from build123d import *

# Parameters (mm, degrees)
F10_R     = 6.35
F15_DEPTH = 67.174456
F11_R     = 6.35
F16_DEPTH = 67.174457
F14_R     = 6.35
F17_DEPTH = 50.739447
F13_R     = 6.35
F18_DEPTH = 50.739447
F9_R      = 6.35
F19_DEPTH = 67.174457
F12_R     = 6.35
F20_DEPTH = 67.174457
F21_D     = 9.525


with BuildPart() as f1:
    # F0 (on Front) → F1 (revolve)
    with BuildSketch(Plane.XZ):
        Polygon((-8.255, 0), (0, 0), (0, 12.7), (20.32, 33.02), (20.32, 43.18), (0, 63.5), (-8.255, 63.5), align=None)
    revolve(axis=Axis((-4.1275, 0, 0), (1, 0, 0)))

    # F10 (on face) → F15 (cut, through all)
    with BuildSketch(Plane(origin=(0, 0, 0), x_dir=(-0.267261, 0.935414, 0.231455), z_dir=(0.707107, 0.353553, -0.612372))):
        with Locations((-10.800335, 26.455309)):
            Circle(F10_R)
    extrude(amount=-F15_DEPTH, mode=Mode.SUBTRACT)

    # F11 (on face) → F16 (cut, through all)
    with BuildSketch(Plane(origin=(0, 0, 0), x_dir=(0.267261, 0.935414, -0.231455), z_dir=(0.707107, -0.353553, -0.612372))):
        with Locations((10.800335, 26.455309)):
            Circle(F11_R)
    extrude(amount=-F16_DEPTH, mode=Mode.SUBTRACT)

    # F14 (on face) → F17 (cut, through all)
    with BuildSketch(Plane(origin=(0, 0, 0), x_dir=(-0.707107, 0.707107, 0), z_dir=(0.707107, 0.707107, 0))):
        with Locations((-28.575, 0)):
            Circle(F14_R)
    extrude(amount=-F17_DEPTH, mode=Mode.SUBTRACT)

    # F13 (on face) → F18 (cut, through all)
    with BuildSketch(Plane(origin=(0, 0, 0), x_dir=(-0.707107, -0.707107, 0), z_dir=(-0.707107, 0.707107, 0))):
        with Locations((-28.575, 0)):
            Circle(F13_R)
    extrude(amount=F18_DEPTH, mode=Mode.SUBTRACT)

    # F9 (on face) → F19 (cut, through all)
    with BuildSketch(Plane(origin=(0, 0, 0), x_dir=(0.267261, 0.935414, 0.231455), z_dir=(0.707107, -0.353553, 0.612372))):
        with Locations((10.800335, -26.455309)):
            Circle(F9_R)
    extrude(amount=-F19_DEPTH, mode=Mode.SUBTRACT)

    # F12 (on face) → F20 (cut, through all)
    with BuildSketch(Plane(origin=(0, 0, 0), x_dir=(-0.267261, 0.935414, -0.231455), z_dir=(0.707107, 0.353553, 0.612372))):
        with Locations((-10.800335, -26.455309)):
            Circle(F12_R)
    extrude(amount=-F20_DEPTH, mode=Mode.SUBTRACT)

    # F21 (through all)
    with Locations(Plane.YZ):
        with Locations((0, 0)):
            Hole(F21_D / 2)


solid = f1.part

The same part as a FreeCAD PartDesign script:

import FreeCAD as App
import Part
import Sketcher

V = App.Vector
Q = App.Units.Quantity

doc = App.newDocument("Part")
params = doc.addObject("Spreadsheet::Sheet", "Params")
for row, (alias, value) in enumerate([
    ("sketch1_height", "0.5 in"),
    ("sketch1_height2", "0.4 in"),
    ("sketch1_height3", "2.5 in"),
    ("sketch1_width", "0.325 in"),
    ("revolution_angle", "360 deg"),
    ("sketch2_diameter", "0.5 in"),
    ("sketch3_diameter", "0.5 in"),
    ("sketch4_diameter", "0.5 in"),
    ("sketch5_diameter", "0.5 in"),
    ("sketch6_diameter", "0.5 in"),
    ("sketch7_diameter", "0.5 in"),
    ("sketch8_diameter", "0.375 in"),
    ("hole_diameter", "0.375 in"),
], start=1):
    params.set(f"A{row}", alias)
    params.set(f"B{row}", "=" + value)
    params.setAlias(f"B{row}", alias)

body = doc.addObject("PartDesign::Body", "Body")

# Sketch on XZ plane
sketch1 = body.newObject("Sketcher::SketchObject", "Sketch")
sketch1.AttachmentSupport = (doc.getObject("XZ_Plane"), [""])
sketch1.MapMode = "FlatFace"
sketch1.addGeometry([
    Part.LineSegment(V(-8, 0, 0), V(0, 0, 0)),  # 0
    Part.LineSegment(V(0, 0, 0), V(0, 13, 0)),  # 1
    Part.LineSegment(V(0, 13, 0), V(20, 33, 0)),  # 2
    Part.LineSegment(V(20, 33, 0), V(20, 43, 0)),  # 3
    Part.LineSegment(V(20, 43, 0), V(0, 64, 0)),  # 4
    Part.LineSegment(V(0, 64, 0), V(-8, 64, 0)),  # 5
    Part.LineSegment(V(-8, 64, 0), V(-8, 0, 0)),  # 6
], False)
sketch1.addConstraint([
    Sketcher.Constraint("Coincident", 0, 2, 1, 1),
    Sketcher.Constraint("Coincident", 1, 2, 2, 1),
    Sketcher.Constraint("Coincident", 2, 2, 3, 1),
    Sketcher.Constraint("Coincident", 3, 2, 4, 1),
    Sketcher.Constraint("Coincident", 4, 2, 5, 1),
    Sketcher.Constraint("Coincident", 5, 2, 6, 1),
    Sketcher.Constraint("Coincident", 6, 2, 0, 1),
    Sketcher.Constraint("Horizontal", 0),
    Sketcher.Constraint("Vertical", 1),
    Sketcher.Constraint("Vertical", 3),
    Sketcher.Constraint("Horizontal", 5),
    Sketcher.Constraint("Vertical", 6),
    Sketcher.Constraint("Coincident", 0, 2, -1, 1),
    Sketcher.Constraint("PointOnObject", 4, 2, -2),
    Sketcher.Constraint("Perpendicular", 2, 4),
    Sketcher.Constraint("Equal", 2, 4),
    Sketcher.Constraint("DistanceY", 1, 1, 1, 2, Q("0.5 in")),
    Sketcher.Constraint("DistanceY", 3, 1, 3, 2, Q("0.4 in")),
    Sketcher.Constraint("DistanceY", 6, 2, 6, 1, Q("2.5 in")),
    Sketcher.Constraint("DistanceX", 0, 1, 0, 2, Q("0.325 in")),
])
sketch1.setExpression("Constraints[16]", "Params.sketch1_height")
sketch1.setExpression("Constraints[17]", "Params.sketch1_height2")
sketch1.setExpression("Constraints[18]", "Params.sketch1_height3")
sketch1.setExpression("Constraints[19]", "Params.sketch1_width")
revolution = body.newObject("PartDesign::Revolution", "Revolution")
revolution.Profile = sketch1
revolution.ReferenceAxis = (sketch1, ["H_Axis"])
revolution.setExpression("Angle", "Params.revolution_angle")

# Sketch on an angled plane
sketch2 = body.newObject("Sketcher::SketchObject", "Sketch001")
sketch2.Placement = App.Placement(V(0, 0, 0), App.Rotation(V(-0.267260922, 0.935414461, 0.231454933), V(0.654653374, -0.000000298, 0.755929203), V(0.707107177, 0.353553088, -0.612372153), "ZXY"))
sketch2.addGeometry(Part.Circle(V(-11, 26, 0), V(0, 0, 1), 6), False)
sketch2.addConstraint([
    Sketcher.Constraint("Diameter", 0, Q("0.5 in")),
    Sketcher.Constraint("DistanceY", -1, 1, 0, 3, 26.455309),
    Sketcher.Constraint("DistanceX", 0, 3, -1, 1, 10.800335),
])
sketch2.setExpression("Constraints[0]", "Params.sketch2_diameter")
pocket1 = body.newObject("PartDesign::Pocket", "Pocket")
pocket1.Profile = sketch2
pocket1.Type = "ThroughAll"

# Sketch on an angled plane
sketch3 = body.newObject("Sketcher::SketchObject", "Sketch002")
sketch3.Placement = App.Placement(V(0, 0, 0), App.Rotation(V(0.267260922, 0.935414461, -0.231454933), V(0.654653374, 0.000000298, 0.755929203), V(0.707107177, -0.353553088, -0.612372153), "ZXY"))
sketch3.addGeometry(Part.Circle(V(11, 26, 0), V(0, 0, 1), 6), False)
sketch3.addConstraint([
    Sketcher.Constraint("Diameter", 0, Q("0.5 in")),
    Sketcher.Constraint("DistanceY", -1, 1, 0, 3, 26.455309),
    Sketcher.Constraint("DistanceX", -1, 1, 0, 3, 10.800335),
])
sketch3.setExpression("Constraints[0]", "Params.sketch3_diameter")
pocket2 = body.newObject("PartDesign::Pocket", "Pocket001")
pocket2.Profile = sketch3
pocket2.Type = "ThroughAll"

# Sketch on an angled plane
sketch4 = body.newObject("Sketcher::SketchObject", "Sketch003")
sketch4.Placement = App.Placement(V(0, 0, 0), App.Rotation(V(-0.707106781, 0.707106781, 0), V(0, 0, 0.999999999), V(0.707106781, 0.707106781, 0), "ZXY"))
sketch4.addGeometry(Part.Circle(V(-29, 0, 0), V(0, 0, 1), 6), False)
sketch4.addConstraint([
    Sketcher.Constraint("PointOnObject", 0, 3, -1),
    Sketcher.Constraint("Diameter", 0, Q("0.5 in")),
    Sketcher.Constraint("DistanceX", 0, 3, -1, 1, Q("1.125 in")),
])
sketch4.setExpression("Constraints[1]", "Params.sketch4_diameter")
pocket3 = body.newObject("PartDesign::Pocket", "Pocket002")
pocket3.Profile = sketch4
pocket3.Type = "ThroughAll"

# Sketch on an angled plane
sketch5 = body.newObject("Sketcher::SketchObject", "Sketch004")
sketch5.Placement = App.Placement(V(0, 0, 0), App.Rotation(V(-0.707106781, -0.707106781, 0), V(0, 0, 0.999999999), V(-0.707106781, 0.707106781, 0), "ZXY"))
sketch5.addGeometry(Part.Circle(V(-29, 0, 0), V(0, 0, 1), 6), False)
sketch5.addConstraint([
    Sketcher.Constraint("PointOnObject", 0, 3, -1),
    Sketcher.Constraint("Diameter", 0, Q("0.5 in")),
    Sketcher.Constraint("DistanceX", 0, 3, -1, 1, Q("1.125 in")),
])
sketch5.setExpression("Constraints[1]", "Params.sketch5_diameter")
pocket4 = body.newObject("PartDesign::Pocket", "Pocket003")
pocket4.Profile = sketch5
pocket4.Type = "ThroughAll"
pocket4.Reversed = True

# Sketch on an angled plane
sketch6 = body.newObject("Sketcher::SketchObject", "Sketch005")
sketch6.Placement = App.Placement(V(0, 0, 0), App.Rotation(V(0.267260922, 0.935414461, 0.231454933), V(-0.654653374, -0.000000298, 0.755929203), V(0.707107177, -0.353553088, 0.612372153), "ZXY"))
sketch6.addGeometry(Part.Circle(V(11, -26, 0), V(0, 0, 1), 6), False)
sketch6.addConstraint([
    Sketcher.Constraint("Diameter", 0, Q("0.5 in")),
    Sketcher.Constraint("DistanceY", 0, 3, -1, 1, 26.455309),
    Sketcher.Constraint("DistanceX", -1, 1, 0, 3, 10.800335),
])
sketch6.setExpression("Constraints[0]", "Params.sketch6_diameter")
pocket5 = body.newObject("PartDesign::Pocket", "Pocket004")
pocket5.Profile = sketch6
pocket5.Type = "ThroughAll"

# Sketch on an angled plane
sketch7 = body.newObject("Sketcher::SketchObject", "Sketch006")
sketch7.Placement = App.Placement(V(0, 0, 0), App.Rotation(V(-0.267260922, 0.935414461, -0.231454933), V(-0.654653374, 0.000000298, 0.755929203), V(0.707107177, 0.353553088, 0.612372153), "ZXY"))
sketch7.addGeometry(Part.Circle(V(-11, -26, 0), V(0, 0, 1), 6), False)
sketch7.addConstraint([
    Sketcher.Constraint("Diameter", 0, Q("0.5 in")),
    Sketcher.Constraint("DistanceY", 0, 3, -1, 1, 26.455309),
    Sketcher.Constraint("DistanceX", 0, 3, -1, 1, 10.800335),
])
sketch7.setExpression("Constraints[0]", "Params.sketch7_diameter")
pocket6 = body.newObject("PartDesign::Pocket", "Pocket005")
pocket6.Profile = sketch7
pocket6.Type = "ThroughAll"

# Sketch on YZ plane
sketch8 = body.newObject("Sketcher::SketchObject", "Sketch007")
sketch8.AttachmentSupport = (doc.getObject("YZ_Plane"), [""])
sketch8.MapMode = "FlatFace"
sketch8.addGeometry(Part.Circle(V(0, 0, 0), V(0, 0, 1), 4.8), False)
sketch8.addConstraint([
    Sketcher.Constraint("Coincident", 0, 3, -1, 1),
    Sketcher.Constraint("Diameter", 0, Q("0.375 in")),
])
sketch8.setExpression("Constraints[1]", "Params.sketch8_diameter")
doc.recompute()
hole = body.newObject("PartDesign::Hole", "Hole")
hole.Profile = sketch8
hole.ThreadType = "None"
hole.setExpression("Diameter", "Params.hole_diameter")
hole.DepthType = "ThroughAll"

doc.recompute()
